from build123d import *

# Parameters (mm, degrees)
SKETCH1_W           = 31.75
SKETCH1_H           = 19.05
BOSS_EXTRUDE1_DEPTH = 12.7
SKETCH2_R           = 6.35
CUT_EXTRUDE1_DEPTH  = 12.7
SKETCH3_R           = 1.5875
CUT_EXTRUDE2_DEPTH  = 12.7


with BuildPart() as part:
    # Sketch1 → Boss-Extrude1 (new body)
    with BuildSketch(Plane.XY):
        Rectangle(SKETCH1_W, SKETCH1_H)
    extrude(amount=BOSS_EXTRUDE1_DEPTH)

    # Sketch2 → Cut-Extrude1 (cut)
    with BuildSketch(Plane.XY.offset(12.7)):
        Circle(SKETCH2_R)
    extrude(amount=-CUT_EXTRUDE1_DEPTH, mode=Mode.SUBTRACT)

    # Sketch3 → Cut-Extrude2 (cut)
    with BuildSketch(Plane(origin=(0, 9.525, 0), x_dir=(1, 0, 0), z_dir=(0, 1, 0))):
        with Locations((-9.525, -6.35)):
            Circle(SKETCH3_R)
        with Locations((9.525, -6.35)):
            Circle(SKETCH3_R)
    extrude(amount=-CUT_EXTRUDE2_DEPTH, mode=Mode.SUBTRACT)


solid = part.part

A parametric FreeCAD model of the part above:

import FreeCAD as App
import Part
import Sketcher
Q = App.Units.Quantity

doc = App.newDocument("Part")
body = doc.addObject("PartDesign::Body", "Body")

# Sketch on XY plane
sketch1 = body.newObject("Sketcher::SketchObject", "Sketch")
sketch1.AttachmentSupport = (doc.getObject("XY_Plane"), [""])
sketch1.MapMode = "FlatFace"
sketch1.addGeometry([
    Part.LineSegment(App.Vector(-16, 10, 0), App.Vector(-16, -10, 0)),
    Part.LineSegment(App.Vector(-16, -10, 0), App.Vector(16, -10, 0)),
    Part.LineSegment(App.Vector(16, -10, 0), App.Vector(16, 10, 0)),
    Part.LineSegment(App.Vector(16, 10, 0), App.Vector(-16, 10, 0)),
], False)
sketch1.addConstraint([
    Sketcher.Constraint("Coincident", 0, 2, 1, 1),
    Sketcher.Constraint("Coincident", 1, 2, 2, 1),
    Sketcher.Constraint("Coincident", 2, 2, 3, 1),
    Sketcher.Constraint("Coincident", 3, 2, 0, 1),
    Sketcher.Constraint("Vertical", 0),
    Sketcher.Constraint("Horizontal", 1),
    Sketcher.Constraint("Vertical", 2),
    Sketcher.Constraint("Horizontal", 3),
    Sketcher.Constraint("Symmetric", 0, 2, 2, 2, -1, 1),
    Sketcher.Constraint("DistanceX", 1, 1, 1, 2, Q("1.25 in")),
    Sketcher.Constraint("DistanceY", 0, 2, 0, 1, Q("0.75 in")),
])
pad1 = body.newObject("PartDesign::Pad", "Pad")
pad1.Profile = sketch1
pad1.Length = Q("0.5 in")

# Sketch on XY plane
sketch2 = body.newObject("Sketcher::SketchObject", "Sketch001")
sketch2.AttachmentSupport = (doc.getObject("XY_Plane"), [""])
sketch2.MapMode = "FlatFace"
sketch2.AttachmentOffset = App.Placement(App.Vector(0, 0, 0.5 * 25.4), App.Rotation())
sketch2.addGeometry(Part.Circle(App.Vector(0, 0, 0), App.Vector(0, 0, 1), 6), False)
sketch2.addConstraint([
    Sketcher.Constraint("Coincident", 0, 3, -1, 1),
    Sketcher.Constraint("Diameter", 0, Q("0.5 in")),
])
pocket1 = body.newObject("PartDesign::Pocket", "Pocket")
pocket1.Profile = sketch2
pocket1.Length = Q("0.5 in")

# Sketch on XZ plane
sketch3 = body.newObject("Sketcher::SketchObject", "Sketch002")
sketch3.AttachmentSupport = (doc.getObject("XZ_Plane"), [""])
sketch3.MapMode = "FlatFace"
sketch3.AttachmentOffset = App.Placement(App.Vector(0, 0, -0.375 * 25.4), App.Rotation())
sketch3.addGeometry([
    Part.Circle(App.Vector(-9.5, 6.3, 0), App.Vector(0, 0, 1), 1.6),
    Part.Circle(App.Vector(9.5, 6.3, 0), App.Vector(0, 0, 1), 1.6),
], False)
sketch3.addConstraint([
    Sketcher.Constraint("Equal", 0, 1),
    Sketcher.Constraint("Symmetric", 0, 3, 1, 3, -2),
    Sketcher.Constraint("Diameter", 0, Q("0.125 in")),
    Sketcher.Constraint("DistanceY", -1, 1, 0, 3, Q("0.25 in")),
    Sketcher.Constraint("DistanceX", 0, 3, 1, 3, Q("0.75 in")),
])
pocket2 = body.newObject("PartDesign::Pocket", "Pocket001")
pocket2.Profile = sketch3
pocket2.Length = Q("0.5 in")
pocket2.Reversed = True

doc.recompute()
